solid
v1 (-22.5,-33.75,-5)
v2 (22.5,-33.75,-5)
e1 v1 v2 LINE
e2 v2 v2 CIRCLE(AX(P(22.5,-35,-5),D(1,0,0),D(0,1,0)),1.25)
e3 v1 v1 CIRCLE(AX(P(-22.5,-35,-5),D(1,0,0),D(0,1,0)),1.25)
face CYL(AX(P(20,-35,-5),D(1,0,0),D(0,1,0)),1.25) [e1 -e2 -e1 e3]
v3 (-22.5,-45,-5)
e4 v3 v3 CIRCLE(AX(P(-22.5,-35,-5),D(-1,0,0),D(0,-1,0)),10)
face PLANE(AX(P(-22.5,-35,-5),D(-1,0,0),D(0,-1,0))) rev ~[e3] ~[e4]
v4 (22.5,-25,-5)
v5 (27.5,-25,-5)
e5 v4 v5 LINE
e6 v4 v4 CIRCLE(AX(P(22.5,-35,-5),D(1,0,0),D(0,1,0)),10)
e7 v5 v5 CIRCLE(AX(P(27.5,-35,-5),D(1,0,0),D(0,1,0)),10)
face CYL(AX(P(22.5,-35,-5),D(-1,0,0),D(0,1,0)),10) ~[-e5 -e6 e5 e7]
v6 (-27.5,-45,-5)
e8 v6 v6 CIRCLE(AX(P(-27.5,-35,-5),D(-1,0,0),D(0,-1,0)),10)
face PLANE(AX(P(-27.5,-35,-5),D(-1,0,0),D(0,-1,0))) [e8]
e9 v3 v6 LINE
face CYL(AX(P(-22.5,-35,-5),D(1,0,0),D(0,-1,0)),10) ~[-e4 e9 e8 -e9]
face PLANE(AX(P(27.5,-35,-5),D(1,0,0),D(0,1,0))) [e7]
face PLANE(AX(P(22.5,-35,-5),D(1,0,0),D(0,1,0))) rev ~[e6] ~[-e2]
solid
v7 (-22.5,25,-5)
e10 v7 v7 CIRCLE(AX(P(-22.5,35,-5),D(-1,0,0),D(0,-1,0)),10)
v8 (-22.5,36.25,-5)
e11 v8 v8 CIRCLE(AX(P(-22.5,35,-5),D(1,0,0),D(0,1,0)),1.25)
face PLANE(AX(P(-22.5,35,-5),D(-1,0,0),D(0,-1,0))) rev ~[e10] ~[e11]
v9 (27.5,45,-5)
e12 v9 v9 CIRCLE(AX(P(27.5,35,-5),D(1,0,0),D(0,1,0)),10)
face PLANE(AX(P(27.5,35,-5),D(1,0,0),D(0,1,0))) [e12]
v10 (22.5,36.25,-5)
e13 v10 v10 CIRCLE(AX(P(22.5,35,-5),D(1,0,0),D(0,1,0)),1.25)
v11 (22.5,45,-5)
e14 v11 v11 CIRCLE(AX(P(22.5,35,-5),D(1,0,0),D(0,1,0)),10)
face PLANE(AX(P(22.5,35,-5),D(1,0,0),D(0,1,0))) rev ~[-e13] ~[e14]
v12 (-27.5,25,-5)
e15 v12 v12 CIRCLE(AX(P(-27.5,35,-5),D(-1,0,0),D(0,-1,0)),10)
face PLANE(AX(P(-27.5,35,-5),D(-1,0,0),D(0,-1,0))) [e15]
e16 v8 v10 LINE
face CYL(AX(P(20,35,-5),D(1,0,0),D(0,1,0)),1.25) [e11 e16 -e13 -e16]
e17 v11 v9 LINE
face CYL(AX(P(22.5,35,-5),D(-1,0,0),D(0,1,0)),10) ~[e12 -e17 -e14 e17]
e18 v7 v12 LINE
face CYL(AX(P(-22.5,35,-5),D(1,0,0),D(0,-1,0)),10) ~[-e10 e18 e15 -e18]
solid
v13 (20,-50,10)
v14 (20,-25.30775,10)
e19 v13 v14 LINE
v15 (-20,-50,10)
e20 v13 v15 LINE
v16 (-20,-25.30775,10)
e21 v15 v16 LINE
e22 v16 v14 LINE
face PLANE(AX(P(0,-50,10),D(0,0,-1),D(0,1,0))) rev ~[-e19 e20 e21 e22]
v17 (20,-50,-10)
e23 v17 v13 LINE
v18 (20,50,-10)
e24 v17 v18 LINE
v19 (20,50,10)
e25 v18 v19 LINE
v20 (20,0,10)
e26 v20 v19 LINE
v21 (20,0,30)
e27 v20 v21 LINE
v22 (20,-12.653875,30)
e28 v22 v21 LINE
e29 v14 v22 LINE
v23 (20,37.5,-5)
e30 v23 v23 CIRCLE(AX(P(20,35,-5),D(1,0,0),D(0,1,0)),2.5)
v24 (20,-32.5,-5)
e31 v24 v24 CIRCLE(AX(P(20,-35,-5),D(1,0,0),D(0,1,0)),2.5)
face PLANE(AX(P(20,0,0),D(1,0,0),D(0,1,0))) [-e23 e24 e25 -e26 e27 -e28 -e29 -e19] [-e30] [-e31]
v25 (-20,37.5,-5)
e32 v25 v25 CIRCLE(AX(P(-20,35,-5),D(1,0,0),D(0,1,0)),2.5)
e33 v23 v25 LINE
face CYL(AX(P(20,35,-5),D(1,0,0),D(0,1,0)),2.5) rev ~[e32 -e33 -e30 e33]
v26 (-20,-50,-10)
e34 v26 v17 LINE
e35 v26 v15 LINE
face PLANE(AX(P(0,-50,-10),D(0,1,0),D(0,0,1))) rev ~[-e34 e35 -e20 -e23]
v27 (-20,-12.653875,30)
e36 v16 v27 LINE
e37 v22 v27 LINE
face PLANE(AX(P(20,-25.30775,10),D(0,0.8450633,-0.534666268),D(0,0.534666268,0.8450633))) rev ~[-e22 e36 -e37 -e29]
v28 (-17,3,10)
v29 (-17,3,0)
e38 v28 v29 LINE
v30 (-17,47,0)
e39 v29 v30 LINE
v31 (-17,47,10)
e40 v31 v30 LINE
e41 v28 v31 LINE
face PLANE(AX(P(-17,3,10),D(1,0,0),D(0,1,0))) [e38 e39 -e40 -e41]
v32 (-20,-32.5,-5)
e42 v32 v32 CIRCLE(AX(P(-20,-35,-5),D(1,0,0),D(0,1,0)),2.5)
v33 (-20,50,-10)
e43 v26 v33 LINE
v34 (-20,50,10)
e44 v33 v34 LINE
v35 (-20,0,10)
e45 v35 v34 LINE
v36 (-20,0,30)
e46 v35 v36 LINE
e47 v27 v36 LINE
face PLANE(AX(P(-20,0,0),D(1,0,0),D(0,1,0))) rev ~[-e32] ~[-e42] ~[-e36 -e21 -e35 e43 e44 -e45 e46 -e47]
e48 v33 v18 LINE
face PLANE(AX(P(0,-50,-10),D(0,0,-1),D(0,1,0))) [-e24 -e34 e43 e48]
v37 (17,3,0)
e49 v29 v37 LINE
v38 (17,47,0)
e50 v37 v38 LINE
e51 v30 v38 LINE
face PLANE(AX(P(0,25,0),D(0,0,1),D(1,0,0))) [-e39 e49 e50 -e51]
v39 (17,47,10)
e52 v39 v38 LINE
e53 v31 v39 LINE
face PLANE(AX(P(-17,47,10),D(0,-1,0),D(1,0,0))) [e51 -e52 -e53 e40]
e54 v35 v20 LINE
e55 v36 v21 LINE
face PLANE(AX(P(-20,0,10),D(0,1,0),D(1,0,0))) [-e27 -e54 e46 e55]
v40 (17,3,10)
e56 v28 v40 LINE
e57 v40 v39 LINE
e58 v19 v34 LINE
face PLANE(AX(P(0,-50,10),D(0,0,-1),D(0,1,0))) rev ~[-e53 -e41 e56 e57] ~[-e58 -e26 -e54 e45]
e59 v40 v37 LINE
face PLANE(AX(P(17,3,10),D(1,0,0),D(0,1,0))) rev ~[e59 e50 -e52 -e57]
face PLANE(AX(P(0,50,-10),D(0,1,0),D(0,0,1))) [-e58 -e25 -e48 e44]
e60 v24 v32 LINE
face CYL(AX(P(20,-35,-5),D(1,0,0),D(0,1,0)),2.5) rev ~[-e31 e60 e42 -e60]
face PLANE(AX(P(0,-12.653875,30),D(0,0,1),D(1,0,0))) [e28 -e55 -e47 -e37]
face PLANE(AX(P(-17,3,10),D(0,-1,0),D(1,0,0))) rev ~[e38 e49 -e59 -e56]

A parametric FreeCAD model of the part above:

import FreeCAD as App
import Part
import Sketcher


def add_polygon(sketch, points):
    """Adds a closed chain of lines whose ends are joined by coincident constraints."""
    first, n = sketch.GeometryCount, len(points)
    for a, b in zip(points, points[1:] + points[:1]):
        sketch.addGeometry(Part.LineSegment(App.Vector(*a, 0), App.Vector(*b, 0)), False)
    for i in range(n):
        sketch.addConstraint(Sketcher.Constraint("Coincident", first + i, 2, first + (i + 1) % n, 1))

doc = App.newDocument("Part")
params = doc.addObject("Spreadsheet::Sheet", "Params")
for row, (alias, value) in enumerate([
    ("sketch1_width", "100 mm"),
    ("sketch1_height", "20 mm"),
    ("pad1_length", "40 mm"),
    ("sketch2_width", "40 mm"),
    ("pad2_length", "20 mm"),
    ("sketch3_height", "20 mm"),
    ("pocket1_length", "40 mm"),
    ("sketch4_diameter", "5 mm"),
    ("sketch5_diameter", "5 mm"),
    ("sketch6_width", "34 mm"),
    ("sketch6_height", "44 mm"),
    ("pocket4_length", "10 mm"),
    ("sketch7_diameter", "2.5 mm"),
    ("pad3_length", "42.5 mm"),
    ("sketch8_diameter", "2.5 mm"),
    ("pad4_length", "2.5 mm"),
    ("sketch9_diameter", "20 mm"),
    ("pad5_length", "5 mm"),
    ("sketch10_diameter", "20 mm"),
    ("pad6_length", "5 mm"),
    ("sketch11_diameter", "2.5 mm"),
    ("pad7_length", "42.5 mm"),
    ("sketch12_diameter", "2.5 mm"),
    ("pad8_length", "2.5 mm"),
    ("sketch13_diameter", "20 mm"),
    ("pad9_length", "5 mm"),
    ("sketch14_diameter", "20 mm"),
    ("pad10_length", "5 mm"),
], start=1):
    params.set(f"A{row}", alias)
    params.set(f"B{row}", "=" + value)
    params.setAlias(f"B{row}", alias)

body = doc.addObject("PartDesign::Body", "Body")

# Sketch on YZ plane
sketch1 = body.newObject("Sketcher::SketchObject", "Sketch")
sketch1.AttachmentSupport = (doc.getObject("YZ_Plane"), [""])
sketch1.MapMode = "FlatFace"
add_polygon(sketch1, [(-50, 10), (-50, -10), (50, -10), (50, 10)])  # lines 0-3
sketch1.addConstraint([
    Sketcher.Constraint("Vertical", 0),
    Sketcher.Constraint("Horizontal", 1),
    Sketcher.Constraint("Vertical", 2),
    Sketcher.Constraint("Horizontal", 3),
    Sketcher.Constraint("Symmetric", 0, 2, 2, 2, -1, 1),
    Sketcher.Constraint("DistanceX", 1, 1, 1, 2, 100.0),
    Sketcher.Constraint("DistanceY", 0, 2, 0, 1, 20.0),
])
sketch1.setExpression("Constraints[9]", "Params.sketch1_width")
sketch1.setExpression("Constraints[10]", "Params.sketch1_height")
pad1 = body.newObject("PartDesign::Pad", "Pad")
pad1.Profile = sketch1
pad1.setExpression("Length", "Params.pad1_length")
pad1.Midplane = True

# Sketch on XY plane
sketch2 = body.newObject("Sketcher::SketchObject", "Sketch001")
sketch2.AttachmentSupport = (doc.getObject("XY_Plane"), [""])
sketch2.MapMode = "FlatFace"
sketch2.AttachmentOffset = App.Placement(App.Vector(0, 0, 10), App.Rotation())
add_polygon(sketch2, [(-20, 0), (-20, -25.30775), (20, -25.30775), (20, 0)])  # lines 0-3
sketch2.addConstraint([
    Sketcher.Constraint("Vertical", 0),
    Sketcher.Constraint("Horizontal", 1),
    Sketcher.Constraint("Vertical", 2),
    Sketcher.Constraint("Horizontal", 3),
    Sketcher.Constraint("Symmetric", 2, 2, 3, 2, -1, 1),
    Sketcher.Constraint("DistanceX", 1, 1, 1, 2, 40.0),
    Sketcher.Constraint("DistanceY", 0, 2, 0, 1, 25.30775),
])
sketch2.setExpression("Constraints[9]", "Params.sketch2_width")
pad2 = body.newObject("PartDesign::Pad", "Pad001")
pad2.Profile = sketch2
pad2.setExpression("Length", "Params.pad2_length")

# Sketch on YZ plane
sketch3 = body.newObject("Sketcher::SketchObject", "Sketch002")
sketch3.AttachmentSupport = (doc.getObject("YZ_Plane"), [""])
sketch3.MapMode = "FlatFace"
sketch3.AttachmentOffset = App.Placement(App.Vector(0, 0, 20), App.Rotation())
add_polygon(sketch3, [(-25.30775, 30), (-25.30775, 10), (-12.653875, 30)])  # lines 0-2
sketch3.addConstraint([
    Sketcher.Constraint("Vertical", 0),
    Sketcher.Constraint("Horizontal", 2),
    Sketcher.Constraint("DistanceY", 0, 2, 0, 1, 20.0),
    Sketcher.Constraint("DistanceY", -1, 1, 0, 2, 10.0),
    Sketcher.Constraint("DistanceX", 2, 2, 2, 1, 12.653875),
    Sketcher.Constraint("DistanceX", 0, 2, -1, 1, 25.30775),
])
sketch3.setExpression("Constraints[5]", "Params.sketch3_height")
pocket1 = body.newObject("PartDesign::Pocket", "Pocket")
pocket1.Profile = sketch3
pocket1.setExpression("Length", "Params.pocket1_length")

# Sketch on YZ plane
sketch4 = body.newObject("Sketcher::SketchObject", "Sketch003")
sketch4.AttachmentSupport = (doc.getObject("YZ_Plane"), [""])
sketch4.MapMode = "FlatFace"
sketch4.AttachmentOffset = App.Placement(App.Vector(0, 0, 20), App.Rotation())
sketch4.addGeometry(Part.Circle(App.Vector(-35, -5, 0), App.Vector(0, 0, 1), 2.5), False)
sketch4.addConstraint([
    Sketcher.Constraint("Diameter", 0, 5.0),
    Sketcher.Constraint("DistanceX", 0, 3, -1, 1, 35.0),
    Sketcher.Constraint("DistanceY", 0, 3, -1, 1, 5.0),
])
sketch4.setExpression("Constraints[0]", "Params.sketch4_diameter")
pocket2 = body.newObject("PartDesign::Pocket", "Pocket001")
pocket2.Profile = sketch4
pocket2.Type = "ThroughAll"

# Sketch on YZ plane
sketch5 = body.newObject("Sketcher::SketchObject", "Sketch004")
sketch5.AttachmentSupport = (doc.getObject("YZ_Plane"), [""])
sketch5.MapMode = "FlatFace"
sketch5.AttachmentOffset = App.Placement(App.Vector(0, 0, 20), App.Rotation())
sketch5.addGeometry(Part.Circle(App.Vector(35, -5, 0), App.Vector(0, 0, 1), 2.5), False)
sketch5.addConstraint([
    Sketcher.Constraint("Diameter", 0, 5.0),
    Sketcher.Constraint("DistanceX", -1, 1, 0, 3, 35.0),
    Sketcher.Constraint("DistanceY", 0, 3, -1, 1, 5.0),
])
sketch5.setExpression("Constraints[0]", "Params.sketch5_diameter")
pocket3 = body.newObject("PartDesign::Pocket", "Pocket002")
pocket3.Profile = sketch5
pocket3.Type = "ThroughAll"

# Sketch on XY plane
sketch6 = body.newObject("Sketcher::SketchObject", "Sketch005")
sketch6.AttachmentSupport = (doc.getObject("XY_Plane"), [""])
sketch6.MapMode = "FlatFace"
sketch6.AttachmentOffset = App.Placement(App.Vector(0, 0, 10), App.Rotation())
add_polygon(sketch6, [(-17, 47), (-17, 3), (17, 3), (17, 47)])  # lines 0-3
sketch6.addConstraint([
    Sketcher.Constraint("Vertical", 0),
    Sketcher.Constraint("Horizontal", 1),
    Sketcher.Constraint("Vertical", 2),
    Sketcher.Constraint("Horizontal", 3),
    Sketcher.Constraint("DistanceX", 1, 1, 1, 2, 34.0),
    Sketcher.Constraint("DistanceY", 0, 2, 0, 1, 44.0),
    Sketcher.Constraint("DistanceX", 0, 2, -1, 1, 17.0),
    Sketcher.Constraint("DistanceY", -1, 1, 0, 2, 3.0),
])
sketch6.setExpression("Constraints[8]", "Params.sketch6_width")
sketch6.setExpression("Constraints[9]", "Params.sketch6_height")
pocket4 = body.newObject("PartDesign::Pocket", "Pocket003")
pocket4.Profile = sketch6
pocket4.setExpression("Length", "Params.pocket4_length")
body2 = doc.addObject("PartDesign::Body", "Body001")

# Sketch on YZ plane
sketch7 = body2.newObject("Sketcher::SketchObject", "Sketch006")
sketch7.AttachmentSupport = (doc.getObject("YZ_Plane001"), [""])
sketch7.MapMode = "FlatFace"
sketch7.AttachmentOffset = App.Placement(App.Vector(0, 0, 20), App.Rotation())
sketch7.addGeometry(Part.Circle(App.Vector(-35, -5, 0), App.Vector(0, 0, 1), 1.25), False)
sketch7.addConstraint([
    Sketcher.Constraint("Diameter", 0, 2.5),
    Sketcher.Constraint("DistanceX", 0, 3, -1, 1, 35.0),
    Sketcher.Constraint("DistanceY", 0, 3, -1, 1, 5.0),
])
sketch7.setExpression("Constraints[0]", "Params.sketch7_diameter")
pad3 = body2.newObject("PartDesign::Pad", "Pad002")
pad3.Profile = sketch7
pad3.setExpression("Length", "Params.pad3_length")
pad3.Reversed = True

# Sketch on YZ plane
sketch8 = body2.newObject("Sketcher::SketchObject", "Sketch007")
sketch8.AttachmentSupport = (doc.getObject("YZ_Plane001"), [""])
sketch8.MapMode = "FlatFace"
sketch8.AttachmentOffset = App.Placement(App.Vector(0, 0, 20), App.Rotation())
sketch8.addGeometry(Part.Circle(App.Vector(-35, -5, 0), App.Vector(0, 0, 1), 1.25), False)
sketch8.addConstraint([
    Sketcher.Constraint("Diameter", 0, 2.5),
    Sketcher.Constraint("DistanceX", 0, 3, -1, 1, 35.0),
    Sketcher.Constraint("DistanceY", 0, 3, -1, 1, 5.0),
])
sketch8.setExpression("Constraints[0]", "Params.sketch8_diameter")
pad4 = body2.newObject("PartDesign::Pad", "Pad003")
pad4.Profile = sketch8
pad4.setExpression("Length", "Params.pad4_length")

# Sketch on YZ plane
sketch9 = body2.newObject("Sketcher::SketchObject", "Sketch008")
sketch9.AttachmentSupport = (doc.getObject("YZ_Plane001"), [""])
sketch9.MapMode = "FlatFace"
sketch9.AttachmentOffset = App.Placement(App.Vector(0, 0, 22.5), App.Rotation())
sketch9.addGeometry(Part.Circle(App.Vector(-35, -5, 0), App.Vector(0, 0, 1), 10), False)
sketch9.addConstraint([
    Sketcher.Constraint("Diameter", 0, 20.0),
    Sketcher.Constraint("DistanceX", 0, 3, -1, 1, 35.0),
    Sketcher.Constraint("DistanceY", 0, 3, -1, 1, 5.0),
])
sketch9.setExpression("Constraints[0]", "Params.sketch9_diameter")
pad5 = body2.newObject("PartDesign::Pad", "Pad004")
pad5.Profile = sketch9
pad5.setExpression("Length", "Params.pad5_length")

# Sketch on YZ plane
sketch10 = body2.newObject("Sketcher::SketchObject", "Sketch009")
sketch10.AttachmentSupport = (doc.getObject("YZ_Plane001"), [""])
sketch10.MapMode = "FlatFace"
sketch10.AttachmentOffset = App.Placement(App.Vector(0, 0, -22.5), App.Rotation())
sketch10.addGeometry(Part.Circle(App.Vector(-35, -5, 0), App.Vector(0, 0, 1), 10), False)
sketch10.addConstraint([
    Sketcher.Constraint("Diameter", 0, 20.0),
    Sketcher.Constraint("DistanceX", 0, 3, -1, 1, 35.0),
    Sketcher.Constraint("DistanceY", 0, 3, -1, 1, 5.0),
])
sketch10.setExpression("Constraints[0]", "Params.sketch10_diameter")
pad6 = body2.newObject("PartDesign::Pad", "Pad005")
pad6.Profile = sketch10
pad6.setExpression("Length", "Params.pad6_length")
pad6.Reversed = True
body3 = doc.addObject("PartDesign::Body", "Body002")

# Sketch on YZ plane
sketch11 = body3.newObject("Sketcher::SketchObject", "Sketch010")
sketch11.AttachmentSupport = (doc.getObject("YZ_Plane002"), [""])
sketch11.MapMode = "FlatFace"
sketch11.AttachmentOffset = App.Placement(App.Vector(0, 0, 20), App.Rotation())
sketch11.addGeometry(Part.Circle(App.Vector(35, -5, 0), App.Vector(0, 0, 1), 1.25), False)
sketch11.addConstraint([
    Sketcher.Constraint("Diameter", 0, 2.5),
    Sketcher.Constraint("DistanceX", -1, 1, 0, 3, 35.0),
    Sketcher.Constraint("DistanceY", 0, 3, -1, 1, 5.0),
])
sketch11.setExpression("Constraints[0]", "Params.sketch11_diameter")
pad7 = body3.newObject("PartDesign::Pad", "Pad006")
pad7.Profile = sketch11
pad7.setExpression("Length", "Params.pad7_length")
pad7.Reversed = True

# Sketch on YZ plane
sketch12 = body3.newObject("Sketcher::SketchObject", "Sketch011")
sketch12.AttachmentSupport = (doc.getObject("YZ_Plane002"), [""])
sketch12.MapMode = "FlatFace"
sketch12.AttachmentOffset = App.Placement(App.Vector(0, 0, 20), App.Rotation())
sketch12.addGeometry(Part.Circle(App.Vector(35, -5, 0), App.Vector(0, 0, 1), 1.25), False)
sketch12.addConstraint([
    Sketcher.Constraint("Diameter", 0, 2.5),
    Sketcher.Constraint("DistanceX", -1, 1, 0, 3, 35.0),
    Sketcher.Constraint("DistanceY", 0, 3, -1, 1, 5.0),
])
sketch12.setExpression("Constraints[0]", "Params.sketch12_diameter")
pad8 = body3.newObject("PartDesign::Pad", "Pad007")
pad8.Profile = sketch12
pad8.setExpression("Length", "Params.pad8_length")

# Sketch on YZ plane
sketch13 = body3.newObject("Sketcher::SketchObject", "Sketch012")
sketch13.AttachmentSupport = (doc.getObject("YZ_Plane002"), [""])
sketch13.MapMode = "FlatFace"
sketch13.AttachmentOffset = App.Placement(App.Vector(0, 0, -22.5), App.Rotation())
sketch13.addGeometry(Part.Circle(App.Vector(35, -5, 0), App.Vector(0, 0, 1), 10), False)
sketch13.addConstraint([
    Sketcher.Constraint("Diameter", 0, 20.0),
    Sketcher.Constraint("DistanceX", -1, 1, 0, 3, 35.0),
    Sketcher.Constraint("DistanceY", 0, 3, -1, 1, 5.0),
])
sketch13.setExpression("Constraints[0]", "Params.sketch13_diameter")
pad9 = body3.newObject("PartDesign::Pad", "Pad008")
pad9.Profile = sketch13
pad9.setExpression("Length", "Params.pad9_length")
pad9.Reversed = True

# Sketch on YZ plane
sketch14 = body3.newObject("Sketcher::SketchObject", "Sketch013")
sketch14.AttachmentSupport = (doc.getObject("YZ_Plane002"), [""])
sketch14.MapMode = "FlatFace"
sketch14.AttachmentOffset = App.Placement(App.Vector(0, 0, 22.5), App.Rotation())
sketch14.addGeometry(Part.Circle(App.Vector(35, -5, 0), App.Vector(0, 0, 1), 10), False)
sketch14.addConstraint([
    Sketcher.Constraint("Diameter", 0, 20.0),
    Sketcher.Constraint("DistanceX", -1, 1, 0, 3, 35.0),
    Sketcher.Constraint("DistanceY", 0, 3, -1, 1, 5.0),
])
sketch14.setExpression("Constraints[0]", "Params.sketch14_diameter")
pad10 = body3.newObject("PartDesign::Pad", "Pad009")
pad10.Profile = sketch14
pad10.setExpression("Length", "Params.pad10_length")

doc.recompute()
